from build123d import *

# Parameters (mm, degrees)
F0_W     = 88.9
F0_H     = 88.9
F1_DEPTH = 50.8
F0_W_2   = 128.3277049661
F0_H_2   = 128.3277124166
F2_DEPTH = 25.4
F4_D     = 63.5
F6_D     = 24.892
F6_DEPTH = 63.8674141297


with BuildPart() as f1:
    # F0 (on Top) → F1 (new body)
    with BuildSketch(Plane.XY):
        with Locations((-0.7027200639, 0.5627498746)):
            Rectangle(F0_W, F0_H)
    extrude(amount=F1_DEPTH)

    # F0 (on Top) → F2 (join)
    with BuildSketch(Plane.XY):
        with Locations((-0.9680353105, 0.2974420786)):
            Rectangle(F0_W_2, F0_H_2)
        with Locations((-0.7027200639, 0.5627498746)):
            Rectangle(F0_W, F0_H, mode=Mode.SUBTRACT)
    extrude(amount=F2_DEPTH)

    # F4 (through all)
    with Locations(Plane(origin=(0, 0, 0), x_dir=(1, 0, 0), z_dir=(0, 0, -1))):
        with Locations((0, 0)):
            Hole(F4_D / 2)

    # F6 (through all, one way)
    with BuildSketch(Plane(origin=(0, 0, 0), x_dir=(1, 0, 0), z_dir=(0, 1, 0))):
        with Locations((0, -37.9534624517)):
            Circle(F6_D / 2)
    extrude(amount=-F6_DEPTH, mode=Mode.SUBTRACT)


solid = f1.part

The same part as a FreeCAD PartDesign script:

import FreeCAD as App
import Part
import Sketcher
from FreeCAD import Vector
Q = App.Units.Quantity

doc = App.newDocument("Part")
body = doc.addObject("PartDesign::Body", "Body")

sketch1 = body.newObject("Sketcher::SketchObject", "Sketch")
sketch1.AttachmentSupport = (doc.getObject("XY_Plane"), [""])
sketch1.MapMode = "FlatFace"
sketch1.addGeometry([
    Part.LineSegment(Vector(-45, 45, 0), Vector(-45, -44, 0)),
    Part.LineSegment(Vector(-45, -44, 0), Vector(44, -44, 0)),
    Part.LineSegment(Vector(44, -44, 0), Vector(44, 45, 0)),
    Part.LineSegment(Vector(44, 45, 0), Vector(-45, 45, 0)),
], False)
sketch1.addConstraint([
    Sketcher.Constraint("Coincident", 0, 2, 1, 1),
    Sketcher.Constraint("Coincident", 1, 2, 2, 1),
    Sketcher.Constraint("Coincident", 2, 2, 3, 1),
    Sketcher.Constraint("Coincident", 3, 2, 0, 1),
    Sketcher.Constraint("Vertical", 0),
    Sketcher.Constraint("Horizontal", 1),
    Sketcher.Constraint("Vertical", 2),
    Sketcher.Constraint("Horizontal", 3),
    Sketcher.Constraint("Equal", 3, 0),
    Sketcher.Constraint("DistanceX", 1, 1, 1, 2, Q("3.5 in")),
    Sketcher.Constraint("DistanceX", 0, 2, -1, 1, 45.15272),
    Sketcher.Constraint("DistanceY", 0, 2, -1, 1, 43.88725),
])
pad1 = body.newObject("PartDesign::Pad", "Pad")
pad1.Profile = sketch1
pad1.Length = Q("2 in")

sketch2 = body.newObject("Sketcher::SketchObject", "Sketch001")
sketch2.AttachmentSupport = (doc.getObject("XY_Plane"), [""])
sketch2.MapMode = "FlatFace"
sketch2.addGeometry([
    Part.LineSegment(Vector(-65, 64, 0), Vector(-65, -64, 0)),
    Part.LineSegment(Vector(-65, -64, 0), Vector(63, -64, 0)),
    Part.LineSegment(Vector(63, -64, 0), Vector(63, 64, 0)),
    Part.LineSegment(Vector(63, 64, 0), Vector(-65, 64, 0)),
    Part.LineSegment(Vector(44, -44, 0), Vector(-45, -44, 0)),
    Part.LineSegment(Vector(-45, -44, 0), Vector(-45, 45, 0)),
    Part.LineSegment(Vector(-45, 45, 0), Vector(44, 45, 0)),
    Part.LineSegment(Vector(44, 45, 0), Vector(44, -44, 0)),
], False)
sketch2.addConstraint([
    Sketcher.Constraint("Coincident", 0, 2, 1, 1),
    Sketcher.Constraint("Coincident", 1, 2, 2, 1),
    Sketcher.Constraint("Coincident", 2, 2, 3, 1),
    Sketcher.Constraint("Coincident", 3, 2, 0, 1),
    Sketcher.Constraint("Coincident", 4, 2, 5, 1),
    Sketcher.Constraint("Coincident", 5, 2, 6, 1),
    Sketcher.Constraint("Coincident", 6, 2, 7, 1),
    Sketcher.Constraint("Coincident", 7, 2, 4, 1),
    Sketcher.Constraint("Vertical", 0),
    Sketcher.Constraint("Horizontal", 1),
    Sketcher.Constraint("Vertical", 2),
    Sketcher.Constraint("Horizontal", 3),
    Sketcher.Constraint("Horizontal", 4),
    Sketcher.Constraint("Vertical", 5),
    Sketcher.Constraint("Horizontal", 6),
    Sketcher.Constraint("Vertical", 7),
    Sketcher.Constraint("Equal", 6, 5),
    Sketcher.Constraint("DistanceX", 4, 2, 4, 1, Q("3.5 in")),
    Sketcher.Constraint("DistanceY", -1, 1, 2, 2, 64.461298),
    Sketcher.Constraint("DistanceX", 1, 1, 1, 2, 128.327705),
    Sketcher.Constraint("DistanceY", 0, 2, 0, 1, 128.327712),
    Sketcher.Constraint("DistanceX", 4, 2, -1, 1, 45.15272),
    Sketcher.Constraint("DistanceY", 4, 2, -1, 1, 43.88725),
    Sketcher.Constraint("DistanceX", 0, 2, -1, 1, 65.131888),
])
pad2 = body.newObject("PartDesign::Pad", "Pad001")
pad2.Profile = sketch2
pad2.Length = Q("1 in")

sketch3 = body.newObject("Sketcher::SketchObject", "Sketch002")
sketch3.AttachmentSupport = (doc.getObject("XY_Plane"), [""])
sketch3.MapMode = "FlatFace"
sketch3.addGeometry(Part.Circle(Vector(0, 0, 0), Vector(0, 0, 1), 32), False)
sketch3.addConstraint([
    Sketcher.Constraint("Coincident", 0, 3, -1, 1),
    Sketcher.Constraint("Diameter", 0, Q("2.5 in")),
])
doc.recompute()
hole = body.newObject("PartDesign::Hole", "Hole")
hole.Profile = sketch3
hole.ThreadType = "None"
hole.Diameter = Q("2.5 in")
hole.DepthType = "ThroughAll"
hole.Reversed = True

sketch4 = body.newObject("Sketcher::SketchObject", "Sketch003")
sketch4.AttachmentSupport = (doc.getObject("XZ_Plane"), [""])
sketch4.MapMode = "FlatFace"
sketch4.addGeometry(Part.Circle(Vector(0, 38, 0), Vector(0, 0, 1), 12), False)
sketch4.addConstraint([
    Sketcher.Constraint("PointOnObject", 0, 3, -2),
    Sketcher.Constraint("Diameter", 0, Q("0.98 in")),
    Sketcher.Constraint("DistanceY", -1, 1, 0, 3, 37.953462),
])
pocket1 = body.newObject("PartDesign::Pocket", "Pocket")
pocket1.Profile = sketch4
pocket1.Type = "ThroughAll"
pocket1.Reversed = True

doc.recompute()
